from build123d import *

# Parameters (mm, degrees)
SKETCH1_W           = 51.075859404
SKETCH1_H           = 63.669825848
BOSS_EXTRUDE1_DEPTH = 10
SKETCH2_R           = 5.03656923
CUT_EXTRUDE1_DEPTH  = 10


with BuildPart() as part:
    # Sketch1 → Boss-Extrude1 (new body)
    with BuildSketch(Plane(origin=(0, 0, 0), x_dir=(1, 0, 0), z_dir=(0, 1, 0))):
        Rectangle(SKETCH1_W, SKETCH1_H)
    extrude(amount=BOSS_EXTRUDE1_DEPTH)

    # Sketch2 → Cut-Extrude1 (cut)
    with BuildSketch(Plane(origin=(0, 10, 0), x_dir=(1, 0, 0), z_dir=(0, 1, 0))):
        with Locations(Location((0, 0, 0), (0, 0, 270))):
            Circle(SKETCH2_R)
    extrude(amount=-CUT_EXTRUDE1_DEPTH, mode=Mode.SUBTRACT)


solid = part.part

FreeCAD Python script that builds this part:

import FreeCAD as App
import Part
import Sketcher

V = App.Vector

doc = App.newDocument("Part")
body = doc.addObject("PartDesign::Body", "Body")

sketch1 = body.newObject("Sketcher::SketchObject", "Sketch")
sketch1.AttachmentSupport = (doc.getObject("XZ_Plane"), [""])
sketch1.MapMode = "FlatFace"
sketch1.addGeometry(Part.LineSegment(V(-26, -32, 0), V(-26, 32, 0)), False)
sketch1.addGeometry(Part.LineSegment(V(-26, 32, 0), V(26, 32, 0)), False)
sketch1.addGeometry(Part.LineSegment(V(26, 32, 0), V(26, -32, 0)), False)
sketch1.addGeometry(Part.LineSegment(V(26, -32, 0), V(-26, -32, 0)), False)
sketch1.addConstraint(Sketcher.Constraint("Coincident", 0, 2, 1, 1))
sketch1.addConstraint(Sketcher.Constraint("Coincident", 1, 2, 2, 1))
sketch1.addConstraint(Sketcher.Constraint("Coincident", 2, 2, 3, 1))
sketch1.addConstraint(Sketcher.Constraint("Coincident", 3, 2, 0, 1))
sketch1.addConstraint(Sketcher.Constraint("Vertical", 0))
sketch1.addConstraint(Sketcher.Constraint("Horizontal", 1))
sketch1.addConstraint(Sketcher.Constraint("Vertical", 2))
sketch1.addConstraint(Sketcher.Constraint("Horizontal", 3))
sketch1.addConstraint(Sketcher.Constraint("Symmetric", 0, 2, 2, 2, -1, 1))
sketch1.addConstraint(Sketcher.Constraint("DistanceX", 1, 1, 1, 2, 51.075859))
sketch1.addConstraint(Sketcher.Constraint("DistanceY", 0, 1, 0, 2, 63.669826))
pad1 = body.newObject("PartDesign::Pad", "Pad")
pad1.Profile = sketch1
pad1.Length = 10
pad1.Reversed = True

sketch2 = body.newObject("Sketcher::SketchObject", "Sketch001")
sketch2.AttachmentSupport = (doc.getObject("XZ_Plane"), [""])
sketch2.MapMode = "FlatFace"
sketch2.AttachmentOffset = App.Placement(V(0, 0, -10), App.Rotation())
sketch2.addGeometry(Part.Circle(V(0, 0, 0), V(0, 0, 1), 5), False)
sketch2.addConstraint(Sketcher.Constraint("Coincident", 0, 3, -1, 1))
sketch2.addConstraint(Sketcher.Constraint("Diameter", 0, 10.073138))
pocket1 = body.newObject("PartDesign::Pocket", "Pocket")
pocket1.Profile = sketch2
pocket1.Length = 10
pocket1.Reversed = True

doc.recompute()
